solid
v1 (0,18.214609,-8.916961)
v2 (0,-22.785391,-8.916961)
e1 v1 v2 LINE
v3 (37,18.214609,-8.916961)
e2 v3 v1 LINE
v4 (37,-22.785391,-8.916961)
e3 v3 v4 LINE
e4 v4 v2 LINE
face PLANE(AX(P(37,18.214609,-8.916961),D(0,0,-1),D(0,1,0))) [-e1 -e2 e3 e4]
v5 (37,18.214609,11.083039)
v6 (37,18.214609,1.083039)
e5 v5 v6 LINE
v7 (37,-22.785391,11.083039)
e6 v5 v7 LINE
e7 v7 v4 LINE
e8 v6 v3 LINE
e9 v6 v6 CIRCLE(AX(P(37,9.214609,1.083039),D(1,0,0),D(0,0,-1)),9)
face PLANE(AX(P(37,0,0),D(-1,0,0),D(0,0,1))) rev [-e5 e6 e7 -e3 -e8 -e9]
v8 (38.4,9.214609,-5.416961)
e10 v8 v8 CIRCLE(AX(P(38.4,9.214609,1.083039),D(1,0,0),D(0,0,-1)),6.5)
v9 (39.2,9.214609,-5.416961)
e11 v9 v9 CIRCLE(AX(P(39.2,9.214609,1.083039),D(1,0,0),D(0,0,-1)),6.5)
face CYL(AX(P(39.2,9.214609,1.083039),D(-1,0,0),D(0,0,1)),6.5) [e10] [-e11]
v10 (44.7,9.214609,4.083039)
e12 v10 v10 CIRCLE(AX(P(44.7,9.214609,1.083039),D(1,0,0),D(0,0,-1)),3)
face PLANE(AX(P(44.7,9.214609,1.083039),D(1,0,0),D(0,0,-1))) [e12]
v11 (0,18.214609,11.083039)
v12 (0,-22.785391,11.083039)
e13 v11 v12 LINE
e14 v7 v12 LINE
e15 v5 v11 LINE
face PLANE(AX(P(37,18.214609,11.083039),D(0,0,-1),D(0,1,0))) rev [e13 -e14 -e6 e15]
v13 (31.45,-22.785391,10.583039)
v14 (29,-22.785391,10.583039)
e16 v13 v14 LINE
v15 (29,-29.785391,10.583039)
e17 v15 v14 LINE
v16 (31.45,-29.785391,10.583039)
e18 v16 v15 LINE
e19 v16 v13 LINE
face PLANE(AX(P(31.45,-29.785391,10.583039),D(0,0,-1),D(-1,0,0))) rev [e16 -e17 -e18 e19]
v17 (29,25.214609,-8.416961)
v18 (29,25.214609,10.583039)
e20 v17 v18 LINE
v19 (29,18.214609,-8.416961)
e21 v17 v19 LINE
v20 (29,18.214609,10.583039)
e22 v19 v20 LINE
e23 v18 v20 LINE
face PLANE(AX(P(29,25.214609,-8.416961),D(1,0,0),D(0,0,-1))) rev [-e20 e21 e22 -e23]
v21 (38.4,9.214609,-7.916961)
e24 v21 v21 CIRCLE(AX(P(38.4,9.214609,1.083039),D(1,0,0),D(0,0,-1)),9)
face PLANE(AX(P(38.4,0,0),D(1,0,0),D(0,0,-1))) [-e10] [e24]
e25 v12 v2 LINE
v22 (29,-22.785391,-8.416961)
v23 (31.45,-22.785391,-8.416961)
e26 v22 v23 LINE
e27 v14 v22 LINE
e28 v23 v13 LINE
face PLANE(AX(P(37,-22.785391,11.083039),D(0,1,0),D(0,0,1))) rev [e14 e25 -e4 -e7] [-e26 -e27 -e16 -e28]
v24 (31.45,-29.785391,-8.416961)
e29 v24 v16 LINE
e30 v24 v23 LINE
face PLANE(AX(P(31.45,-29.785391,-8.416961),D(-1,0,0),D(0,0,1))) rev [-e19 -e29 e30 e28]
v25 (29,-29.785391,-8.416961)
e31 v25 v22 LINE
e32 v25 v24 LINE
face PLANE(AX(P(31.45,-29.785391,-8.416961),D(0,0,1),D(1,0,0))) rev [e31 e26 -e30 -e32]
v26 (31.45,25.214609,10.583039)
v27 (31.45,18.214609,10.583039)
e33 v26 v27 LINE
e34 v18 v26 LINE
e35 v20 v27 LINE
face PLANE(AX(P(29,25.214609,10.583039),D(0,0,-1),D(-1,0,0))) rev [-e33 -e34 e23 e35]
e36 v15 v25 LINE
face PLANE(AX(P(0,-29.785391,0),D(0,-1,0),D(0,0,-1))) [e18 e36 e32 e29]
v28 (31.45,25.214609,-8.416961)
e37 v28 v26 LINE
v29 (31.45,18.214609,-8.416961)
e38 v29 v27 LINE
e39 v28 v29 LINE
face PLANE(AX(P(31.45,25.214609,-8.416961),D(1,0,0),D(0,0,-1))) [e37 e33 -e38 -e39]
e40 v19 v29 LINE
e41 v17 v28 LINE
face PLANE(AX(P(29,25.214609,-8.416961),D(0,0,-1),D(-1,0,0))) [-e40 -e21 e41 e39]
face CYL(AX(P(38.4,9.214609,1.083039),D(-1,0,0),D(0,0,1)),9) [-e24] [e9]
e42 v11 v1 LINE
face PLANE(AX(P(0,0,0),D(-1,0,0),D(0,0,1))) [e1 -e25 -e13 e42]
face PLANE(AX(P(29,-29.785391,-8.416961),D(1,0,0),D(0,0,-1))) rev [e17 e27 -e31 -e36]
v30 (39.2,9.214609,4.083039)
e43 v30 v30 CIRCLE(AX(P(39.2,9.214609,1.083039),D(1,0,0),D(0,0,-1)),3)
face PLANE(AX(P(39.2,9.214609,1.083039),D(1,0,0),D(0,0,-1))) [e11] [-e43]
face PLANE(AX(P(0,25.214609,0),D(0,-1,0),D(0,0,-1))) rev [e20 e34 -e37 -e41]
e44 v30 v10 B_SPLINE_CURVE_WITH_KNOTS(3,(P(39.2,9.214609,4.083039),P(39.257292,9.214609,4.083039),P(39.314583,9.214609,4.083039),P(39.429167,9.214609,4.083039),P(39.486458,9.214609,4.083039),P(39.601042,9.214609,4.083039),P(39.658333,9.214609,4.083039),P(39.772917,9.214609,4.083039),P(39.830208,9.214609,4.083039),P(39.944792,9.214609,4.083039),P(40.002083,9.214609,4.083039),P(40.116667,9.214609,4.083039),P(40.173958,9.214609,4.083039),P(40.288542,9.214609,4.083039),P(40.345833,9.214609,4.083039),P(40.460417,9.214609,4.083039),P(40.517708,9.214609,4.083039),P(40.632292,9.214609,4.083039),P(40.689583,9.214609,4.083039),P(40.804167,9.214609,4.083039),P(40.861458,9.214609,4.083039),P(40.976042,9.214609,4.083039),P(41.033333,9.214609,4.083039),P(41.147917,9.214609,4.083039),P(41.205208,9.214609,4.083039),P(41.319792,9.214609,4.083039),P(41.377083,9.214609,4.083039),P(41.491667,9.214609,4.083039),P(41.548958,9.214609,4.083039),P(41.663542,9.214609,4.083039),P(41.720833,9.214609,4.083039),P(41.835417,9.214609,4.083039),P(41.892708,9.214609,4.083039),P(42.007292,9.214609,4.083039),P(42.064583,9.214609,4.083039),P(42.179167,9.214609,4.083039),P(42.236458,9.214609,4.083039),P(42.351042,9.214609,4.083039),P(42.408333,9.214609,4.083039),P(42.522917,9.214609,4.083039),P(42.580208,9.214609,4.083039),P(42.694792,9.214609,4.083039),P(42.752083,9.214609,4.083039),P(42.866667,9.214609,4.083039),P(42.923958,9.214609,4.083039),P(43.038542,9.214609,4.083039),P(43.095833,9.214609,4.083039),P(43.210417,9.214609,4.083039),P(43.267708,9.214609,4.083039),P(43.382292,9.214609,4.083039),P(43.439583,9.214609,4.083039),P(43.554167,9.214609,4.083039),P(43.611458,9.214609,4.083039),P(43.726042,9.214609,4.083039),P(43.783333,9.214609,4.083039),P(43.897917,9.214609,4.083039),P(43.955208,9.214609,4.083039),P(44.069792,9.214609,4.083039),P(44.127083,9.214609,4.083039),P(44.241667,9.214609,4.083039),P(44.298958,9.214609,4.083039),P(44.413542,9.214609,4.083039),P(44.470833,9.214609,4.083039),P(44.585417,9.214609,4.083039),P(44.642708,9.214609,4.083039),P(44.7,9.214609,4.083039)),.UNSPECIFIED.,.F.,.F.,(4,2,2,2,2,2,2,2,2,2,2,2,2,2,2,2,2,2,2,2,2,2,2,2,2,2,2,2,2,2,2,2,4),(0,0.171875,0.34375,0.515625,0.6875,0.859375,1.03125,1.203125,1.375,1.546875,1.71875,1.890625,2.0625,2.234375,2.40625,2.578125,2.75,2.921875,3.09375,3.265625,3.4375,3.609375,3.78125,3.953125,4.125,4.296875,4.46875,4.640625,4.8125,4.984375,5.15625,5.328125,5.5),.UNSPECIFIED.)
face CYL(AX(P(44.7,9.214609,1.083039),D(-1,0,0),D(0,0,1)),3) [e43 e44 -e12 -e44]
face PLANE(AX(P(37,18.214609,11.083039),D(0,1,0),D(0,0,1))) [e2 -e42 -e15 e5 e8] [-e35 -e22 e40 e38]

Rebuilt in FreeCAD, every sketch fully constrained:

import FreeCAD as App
import Part
import Sketcher

V = App.Vector
Q = App.Units.Quantity


def add_polygon(sketch, points):
    """Adds a closed chain of lines whose ends are joined by coincident constraints."""
    first, n = sketch.GeometryCount, len(points)
    for a, b in zip(points, points[1:] + points[:1]):
        sketch.addGeometry(Part.LineSegment(App.Vector(*a, 0), App.Vector(*b, 0)), False)
    for i in range(n):
        sketch.addConstraint(Sketcher.Constraint("Coincident", first + i, 2, first + (i + 1) % n, 1))

doc = App.newDocument("Part")
body = doc.addObject("PartDesign::Body", "Body")

# Sketch on YZ plane
sketch1 = body.newObject("Sketcher::SketchObject", "Sketch")
sketch1.AttachmentSupport = (doc.getObject("YZ_Plane"), [""])
sketch1.MapMode = "FlatFace"
add_polygon(sketch1, [(18.214609, 11.083039), (-22.785391, 11.083039), (-22.785391, -8.916961), (18.214609, -8.916961)])  # lines 0-3
sketch1.addConstraint(Sketcher.Constraint("Horizontal", 0))
sketch1.addConstraint(Sketcher.Constraint("Vertical", 1))
sketch1.addConstraint(Sketcher.Constraint("Horizontal", 2))
sketch1.addConstraint(Sketcher.Constraint("Vertical", 3))
sketch1.addConstraint(Sketcher.Constraint("DistanceX", 0, 2, 0, 1, Q("41 mm")))
sketch1.addConstraint(Sketcher.Constraint("DistanceY", 1, 2, 1, 1, Q("20 mm")))
sketch1.addConstraint(Sketcher.Constraint("DistanceX", 0, 2, -1, 1, Q("22.785391 mm")))
sketch1.addConstraint(Sketcher.Constraint("DistanceY", -1, 1, 0, 2, Q("11.083039 mm")))
pad1 = body.newObject("PartDesign::Pad", "Pad")
pad1.Profile = sketch1
pad1.Length = 37

# Sketch on XZ plane
sketch2 = body.newObject("Sketcher::SketchObject", "Sketch001")
sketch2.AttachmentSupport = (doc.getObject("XZ_Plane"), [""])
sketch2.MapMode = "FlatFace"
sketch2.AttachmentOffset = App.Placement(V(0, 0, -18.214609), App.Rotation())
add_polygon(sketch2, [(29, -8.416961), (29, 10.583039), (31.45, 10.583039), (31.45, -8.416961)])  # lines 0-3
sketch2.addConstraint(Sketcher.Constraint("Vertical", 0))
sketch2.addConstraint(Sketcher.Constraint("Horizontal", 1))
sketch2.addConstraint(Sketcher.Constraint("Vertical", 2))
sketch2.addConstraint(Sketcher.Constraint("Horizontal", 3))
sketch2.addConstraint(Sketcher.Constraint("DistanceY", 0, 1, 0, 2, Q("19 mm")))
sketch2.addConstraint(Sketcher.Constraint("DistanceX", -1, 1, 0, 2, Q("29 mm")))
sketch2.addConstraint(Sketcher.Constraint("DistanceX", 1, 1, 1, 2, Q("2.45 mm")))
sketch2.addConstraint(Sketcher.Constraint("DistanceY", -1, 1, 0, 2, Q("10.583039 mm")))
pad2 = body.newObject("PartDesign::Pad", "Pad001")
pad2.Profile = sketch2
pad2.Length = 7
pad2.Reversed = True

# Sketch on XZ plane
sketch3 = body.newObject("Sketcher::SketchObject", "Sketch002")
sketch3.AttachmentSupport = (doc.getObject("XZ_Plane"), [""])
sketch3.MapMode = "FlatFace"
sketch3.AttachmentOffset = App.Placement(V(0, 0, 22.785391), App.Rotation())
add_polygon(sketch3, [(29, 10.583039), (29, -8.416961), (31.45, -8.416961), (31.45, 10.583039)])  # lines 0-3
sketch3.addConstraint(Sketcher.Constraint("Vertical", 0))
sketch3.addConstraint(Sketcher.Constraint("Horizontal", 1))
sketch3.addConstraint(Sketcher.Constraint("Vertical", 2))
sketch3.addConstraint(Sketcher.Constraint("Horizontal", 3))
sketch3.addConstraint(Sketcher.Constraint("DistanceY", 0, 2, 0, 1, Q("19 mm")))
sketch3.addConstraint(Sketcher.Constraint("DistanceX", -1, 1, 0, 2, Q("29 mm")))
sketch3.addConstraint(Sketcher.Constraint("DistanceX", 1, 1, 1, 2, Q("2.45 mm")))
sketch3.addConstraint(Sketcher.Constraint("DistanceY", 0, 2, -1, 1, Q("8.416961 mm")))
pad3 = body.newObject("PartDesign::Pad", "Pad002")
pad3.Profile = sketch3
pad3.Length = 7

# Sketch on YZ plane
sketch4 = body.newObject("Sketcher::SketchObject", "Sketch003")
sketch4.AttachmentSupport = (doc.getObject("YZ_Plane"), [""])
sketch4.MapMode = "FlatFace"
sketch4.AttachmentOffset = App.Placement(V(0, 0, 37), App.Rotation())
sketch4.addGeometry(Part.Circle(V(9.214609, 1.083039, 0), V(0, 0, 1), 3), False)
sketch4.addConstraint(Sketcher.Constraint("Diameter", 0, Q("6 mm")))
sketch4.addConstraint(Sketcher.Constraint("DistanceX", -1, 1, 0, 3, Q("9.214609 mm")))
sketch4.addConstraint(Sketcher.Constraint("DistanceY", -1, 1, 0, 3, Q("1.083039 mm")))
pad4 = body.newObject("PartDesign::Pad", "Pad003")
pad4.Profile = sketch4
pad4.Length = 7.7

# Sketch on YZ plane
sketch5 = body.newObject("Sketcher::SketchObject", "Sketch004")
sketch5.AttachmentSupport = (doc.getObject("YZ_Plane"), [""])
sketch5.MapMode = "FlatFace"
sketch5.AttachmentOffset = App.Placement(V(0, 0, 37), App.Rotation())
sketch5.addGeometry(Part.Circle(V(9.214609, 1.083039, 0), V(0, 0, 1), 9), False)
sketch5.addConstraint(Sketcher.Constraint("Diameter", 0, Q("18 mm")))
sketch5.addConstraint(Sketcher.Constraint("DistanceX", -1, 1, 0, 3, Q("9.214609 mm")))
sketch5.addConstraint(Sketcher.Constraint("DistanceY", -1, 1, 0, 3, Q("1.083039 mm")))
pad5 = body.newObject("PartDesign::Pad", "Pad004")
pad5.Profile = sketch5
pad5.Length = 1.4

# Sketch on YZ plane
sketch6 = body.newObject("Sketcher::SketchObject", "Sketch005")
sketch6.AttachmentSupport = (doc.getObject("YZ_Plane"), [""])
sketch6.MapMode = "FlatFace"
sketch6.AttachmentOffset = App.Placement(V(0, 0, 38.4), App.Rotation())
sketch6.addGeometry(Part.Circle(V(9.214609, 1.083039, 0), V(0, 0, 1), 6.5), False)
sketch6.addConstraint(Sketcher.Constraint("Diameter", 0, Q("13 mm")))
sketch6.addConstraint(Sketcher.Constraint("DistanceX", -1, 1, 0, 3, Q("9.214609 mm")))
sketch6.addConstraint(Sketcher.Constraint("DistanceY", -1, 1, 0, 3, Q("1.083039 mm")))
pad6 = body.newObject("PartDesign::Pad", "Pad005")
pad6.Profile = sketch6
pad6.Length = 0.8

doc.recompute()
